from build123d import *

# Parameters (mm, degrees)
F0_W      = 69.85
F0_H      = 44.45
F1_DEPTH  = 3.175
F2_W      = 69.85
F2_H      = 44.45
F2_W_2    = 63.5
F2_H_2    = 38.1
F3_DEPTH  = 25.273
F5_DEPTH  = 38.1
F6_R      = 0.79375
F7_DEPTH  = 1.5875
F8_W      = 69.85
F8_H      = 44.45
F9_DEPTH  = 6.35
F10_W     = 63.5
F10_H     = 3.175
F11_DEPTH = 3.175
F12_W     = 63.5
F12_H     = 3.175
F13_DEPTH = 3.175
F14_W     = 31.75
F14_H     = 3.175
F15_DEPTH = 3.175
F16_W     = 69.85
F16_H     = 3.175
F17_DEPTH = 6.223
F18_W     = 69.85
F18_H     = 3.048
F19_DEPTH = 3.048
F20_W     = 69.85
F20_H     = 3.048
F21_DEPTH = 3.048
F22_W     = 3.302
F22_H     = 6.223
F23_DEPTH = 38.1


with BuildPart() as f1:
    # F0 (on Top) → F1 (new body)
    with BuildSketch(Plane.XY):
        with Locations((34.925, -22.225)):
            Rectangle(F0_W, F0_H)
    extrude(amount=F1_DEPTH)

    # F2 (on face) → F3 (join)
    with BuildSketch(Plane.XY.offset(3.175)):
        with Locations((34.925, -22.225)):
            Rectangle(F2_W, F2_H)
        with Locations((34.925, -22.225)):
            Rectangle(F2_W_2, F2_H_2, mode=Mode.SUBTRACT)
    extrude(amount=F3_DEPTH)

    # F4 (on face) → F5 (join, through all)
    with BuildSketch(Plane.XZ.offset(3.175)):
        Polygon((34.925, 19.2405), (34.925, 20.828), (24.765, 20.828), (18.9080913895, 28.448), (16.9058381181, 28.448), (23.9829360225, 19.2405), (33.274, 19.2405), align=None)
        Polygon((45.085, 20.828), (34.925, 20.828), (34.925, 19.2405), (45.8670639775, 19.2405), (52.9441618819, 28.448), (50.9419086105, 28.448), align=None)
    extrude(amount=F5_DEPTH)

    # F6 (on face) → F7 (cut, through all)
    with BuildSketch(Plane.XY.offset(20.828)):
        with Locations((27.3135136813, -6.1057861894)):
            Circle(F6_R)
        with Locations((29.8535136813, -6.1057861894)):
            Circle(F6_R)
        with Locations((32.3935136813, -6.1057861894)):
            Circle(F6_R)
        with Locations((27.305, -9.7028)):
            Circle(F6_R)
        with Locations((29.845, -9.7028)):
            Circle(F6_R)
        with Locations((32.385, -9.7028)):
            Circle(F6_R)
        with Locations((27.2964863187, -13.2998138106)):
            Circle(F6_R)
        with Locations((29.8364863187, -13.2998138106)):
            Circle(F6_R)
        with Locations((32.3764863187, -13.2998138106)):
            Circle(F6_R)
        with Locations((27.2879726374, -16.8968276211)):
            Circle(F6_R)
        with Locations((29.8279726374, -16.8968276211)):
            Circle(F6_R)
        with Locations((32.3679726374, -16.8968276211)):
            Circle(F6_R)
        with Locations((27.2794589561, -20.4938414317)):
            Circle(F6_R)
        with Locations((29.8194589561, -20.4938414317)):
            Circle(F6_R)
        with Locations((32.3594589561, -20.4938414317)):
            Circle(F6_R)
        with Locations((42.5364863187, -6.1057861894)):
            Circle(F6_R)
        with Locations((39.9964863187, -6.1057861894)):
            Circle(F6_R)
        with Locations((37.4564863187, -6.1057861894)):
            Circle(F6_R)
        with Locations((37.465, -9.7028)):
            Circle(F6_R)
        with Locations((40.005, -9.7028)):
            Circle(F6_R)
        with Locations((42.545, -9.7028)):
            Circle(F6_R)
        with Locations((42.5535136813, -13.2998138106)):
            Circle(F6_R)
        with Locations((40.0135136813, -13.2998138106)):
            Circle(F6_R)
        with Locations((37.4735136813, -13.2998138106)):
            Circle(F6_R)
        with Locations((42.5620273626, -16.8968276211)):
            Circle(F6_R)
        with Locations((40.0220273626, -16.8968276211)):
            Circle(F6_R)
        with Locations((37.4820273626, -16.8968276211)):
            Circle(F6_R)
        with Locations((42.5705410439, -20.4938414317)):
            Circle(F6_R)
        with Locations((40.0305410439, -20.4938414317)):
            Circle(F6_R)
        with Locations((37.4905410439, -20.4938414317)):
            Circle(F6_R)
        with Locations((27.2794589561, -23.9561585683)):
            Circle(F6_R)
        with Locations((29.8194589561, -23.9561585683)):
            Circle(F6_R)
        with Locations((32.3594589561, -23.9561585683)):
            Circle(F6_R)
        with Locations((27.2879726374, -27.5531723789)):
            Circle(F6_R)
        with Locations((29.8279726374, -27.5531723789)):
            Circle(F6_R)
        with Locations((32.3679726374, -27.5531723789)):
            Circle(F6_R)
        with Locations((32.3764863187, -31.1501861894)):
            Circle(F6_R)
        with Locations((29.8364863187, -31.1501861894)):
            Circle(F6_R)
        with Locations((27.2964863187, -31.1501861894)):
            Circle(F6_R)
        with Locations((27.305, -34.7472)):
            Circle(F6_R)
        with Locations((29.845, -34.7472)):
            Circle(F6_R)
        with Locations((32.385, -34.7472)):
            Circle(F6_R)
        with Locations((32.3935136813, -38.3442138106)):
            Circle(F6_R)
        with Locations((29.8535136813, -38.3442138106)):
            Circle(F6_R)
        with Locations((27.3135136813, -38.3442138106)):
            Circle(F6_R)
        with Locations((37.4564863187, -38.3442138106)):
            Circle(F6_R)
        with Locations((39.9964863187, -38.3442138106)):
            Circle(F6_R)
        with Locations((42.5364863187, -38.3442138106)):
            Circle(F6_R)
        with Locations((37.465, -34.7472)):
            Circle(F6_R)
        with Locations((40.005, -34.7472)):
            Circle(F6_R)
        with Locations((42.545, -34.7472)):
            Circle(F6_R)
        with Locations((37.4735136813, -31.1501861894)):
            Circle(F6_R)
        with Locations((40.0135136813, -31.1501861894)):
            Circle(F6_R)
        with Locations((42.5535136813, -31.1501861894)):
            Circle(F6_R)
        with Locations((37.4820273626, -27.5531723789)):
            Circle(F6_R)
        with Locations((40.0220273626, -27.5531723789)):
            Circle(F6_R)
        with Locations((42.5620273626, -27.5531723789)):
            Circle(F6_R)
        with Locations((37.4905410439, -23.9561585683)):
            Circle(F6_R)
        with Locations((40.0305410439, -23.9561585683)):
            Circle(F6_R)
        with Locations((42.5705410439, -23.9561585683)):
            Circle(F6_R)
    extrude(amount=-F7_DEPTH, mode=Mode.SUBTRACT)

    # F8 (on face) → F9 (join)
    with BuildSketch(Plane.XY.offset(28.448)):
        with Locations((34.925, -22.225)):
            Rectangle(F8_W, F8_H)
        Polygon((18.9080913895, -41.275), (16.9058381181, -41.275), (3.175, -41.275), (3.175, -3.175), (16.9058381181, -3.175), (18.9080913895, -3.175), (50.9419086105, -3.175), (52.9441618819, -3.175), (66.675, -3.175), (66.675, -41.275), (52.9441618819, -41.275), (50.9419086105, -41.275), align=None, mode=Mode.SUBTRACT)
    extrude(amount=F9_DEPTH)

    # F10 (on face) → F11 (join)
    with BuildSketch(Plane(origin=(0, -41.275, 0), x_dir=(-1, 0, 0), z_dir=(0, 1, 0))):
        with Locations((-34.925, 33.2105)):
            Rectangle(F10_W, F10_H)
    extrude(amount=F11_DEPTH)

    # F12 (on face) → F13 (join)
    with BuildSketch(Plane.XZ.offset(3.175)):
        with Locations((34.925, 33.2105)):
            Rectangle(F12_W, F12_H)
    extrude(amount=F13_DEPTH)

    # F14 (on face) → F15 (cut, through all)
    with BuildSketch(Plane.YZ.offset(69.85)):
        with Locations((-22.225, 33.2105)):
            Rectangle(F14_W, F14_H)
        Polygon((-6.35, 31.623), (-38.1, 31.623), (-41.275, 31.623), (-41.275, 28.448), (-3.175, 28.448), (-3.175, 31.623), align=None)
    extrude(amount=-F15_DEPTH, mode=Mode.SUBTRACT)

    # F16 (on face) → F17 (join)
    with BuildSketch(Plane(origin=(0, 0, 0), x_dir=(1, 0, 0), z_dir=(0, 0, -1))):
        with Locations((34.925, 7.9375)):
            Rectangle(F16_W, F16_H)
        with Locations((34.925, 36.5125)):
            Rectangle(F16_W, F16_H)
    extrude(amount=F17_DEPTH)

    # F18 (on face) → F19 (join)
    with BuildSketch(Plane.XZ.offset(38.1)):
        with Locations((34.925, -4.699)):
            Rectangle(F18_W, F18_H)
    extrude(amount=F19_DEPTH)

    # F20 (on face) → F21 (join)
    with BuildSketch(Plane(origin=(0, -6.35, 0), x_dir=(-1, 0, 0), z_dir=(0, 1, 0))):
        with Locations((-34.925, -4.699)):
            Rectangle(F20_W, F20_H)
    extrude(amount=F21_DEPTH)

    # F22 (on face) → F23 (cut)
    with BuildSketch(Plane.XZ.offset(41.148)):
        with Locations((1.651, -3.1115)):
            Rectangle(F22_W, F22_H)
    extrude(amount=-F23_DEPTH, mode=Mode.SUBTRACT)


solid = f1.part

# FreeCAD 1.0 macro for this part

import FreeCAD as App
import Part
import Sketcher
Q = App.Units.Quantity

doc = App.newDocument("Part")
body = doc.addObject("PartDesign::Body", "Body")

# Sketch on XY plane
sketch1 = body.newObject("Sketcher::SketchObject", "Sketch")
sketch1.AttachmentSupport = (doc.getObject("XY_Plane"), [""])
sketch1.MapMode = "FlatFace"
sketch1.addGeometry([
    Part.LineSegment(App.Vector(0, 0, 0), App.Vector(0, -44.45, 0)),
    Part.LineSegment(App.Vector(0, -44.45, 0), App.Vector(69.85, -44.45, 0)),
    Part.LineSegment(App.Vector(69.85, -44.45, 0), App.Vector(69.85, 0, 0)),
    Part.LineSegment(App.Vector(69.85, 0, 0), App.Vector(0, 0, 0)),
], False)
sketch1.addConstraint([
    Sketcher.Constraint("Coincident", 0, 2, 1, 1),
    Sketcher.Constraint("Coincident", 1, 2, 2, 1),
    Sketcher.Constraint("Coincident", 2, 2, 3, 1),
    Sketcher.Constraint("Coincident", 3, 2, 0, 1),
    Sketcher.Constraint("Vertical", 0),
    Sketcher.Constraint("Horizontal", 1),
    Sketcher.Constraint("Vertical", 2),
    Sketcher.Constraint("Horizontal", 3),
    Sketcher.Constraint("Coincident", 3, 2, -1, 1),
    Sketcher.Constraint("DistanceX", 1, 1, 1, 2, Q("2.75 in")),
    Sketcher.Constraint("DistanceY", 0, 2, 0, 1, Q("1.75 in")),
])
pad1 = body.newObject("PartDesign::Pad", "Pad")
pad1.Profile = sketch1
pad1.Length = Q("0.125 in")

# Sketch on XY plane
sketch2 = body.newObject("Sketcher::SketchObject", "Sketch001")
sketch2.AttachmentSupport = (doc.getObject("XY_Plane"), [""])
sketch2.MapMode = "FlatFace"
sketch2.AttachmentOffset = App.Placement(App.Vector(0, 0, 0.125 * 25.4), App.Rotation())
sketch2.addGeometry([
    Part.LineSegment(App.Vector(0, 0, 0), App.Vector(0, -44.45, 0)),  # 0
    Part.LineSegment(App.Vector(0, -44.45, 0), App.Vector(69.85, -44.45, 0)),  # 1
    Part.LineSegment(App.Vector(69.85, -44.45, 0), App.Vector(69.85, 0, 0)),  # 2
    Part.LineSegment(App.Vector(69.85, 0, 0), App.Vector(0, 0, 0)),  # 3
    Part.LineSegment(App.Vector(66.675, -41.275, 0), App.Vector(3.175, -41.275, 0)),  # 4
    Part.LineSegment(App.Vector(3.175, -41.275, 0), App.Vector(3.175, -3.175, 0)),  # 5
    Part.LineSegment(App.Vector(3.175, -3.175, 0), App.Vector(66.675, -3.175, 0)),  # 6
    Part.LineSegment(App.Vector(66.675, -3.175, 0), App.Vector(66.675, -41.275, 0)),  # 7
], False)
sketch2.addConstraint([
    Sketcher.Constraint("Coincident", 0, 2, 1, 1),
    Sketcher.Constraint("Coincident", 1, 2, 2, 1),
    Sketcher.Constraint("Coincident", 2, 2, 3, 1),
    Sketcher.Constraint("Coincident", 3, 2, 0, 1),
    Sketcher.Constraint("Coincident", 4, 2, 5, 1),
    Sketcher.Constraint("Coincident", 5, 2, 6, 1),
    Sketcher.Constraint("Coincident", 6, 2, 7, 1),
    Sketcher.Constraint("Coincident", 7, 2, 4, 1),
    Sketcher.Constraint("Vertical", 0),
    Sketcher.Constraint("Horizontal", 1),
    Sketcher.Constraint("Vertical", 2),
    Sketcher.Constraint("Horizontal", 3),
    Sketcher.Constraint("Horizontal", 4),
    Sketcher.Constraint("Vertical", 5),
    Sketcher.Constraint("Horizontal", 6),
    Sketcher.Constraint("Vertical", 7),
    Sketcher.Constraint("Coincident", 3, 2, -1, 1),
    Sketcher.Constraint("DistanceX", 4, 2, 4, 1, Q("2.5 in")),
    Sketcher.Constraint("DistanceY", 5, 1, 5, 2, Q("1.5 in")),
    Sketcher.Constraint("DistanceX", 1, 1, 1, 2, Q("2.75 in")),
    Sketcher.Constraint("DistanceY", 0, 2, 0, 1, Q("1.75 in")),
    Sketcher.Constraint("DistanceX", -1, 1, 4, 2, Q("0.125 in")),
    Sketcher.Constraint("DistanceY", 4, 2, -1, 1, Q("1.625 in")),
])
pad2 = body.newObject("PartDesign::Pad", "Pad001")
pad2.Profile = sketch2
pad2.Length = Q("0.995 in")

# Sketch on XZ plane
sketch3 = body.newObject("Sketcher::SketchObject", "Sketch002")
sketch3.AttachmentSupport = (doc.getObject("XZ_Plane"), [""])
sketch3.MapMode = "FlatFace"
sketch3.AttachmentOffset = App.Placement(App.Vector(0, 0, 0.125 * 25.4), App.Rotation())
sketch3.addGeometry([
    Part.LineSegment(App.Vector(24.765, 20.828, 0), App.Vector(18.908091, 28.448, 0)),  # 0
    Part.LineSegment(App.Vector(18.908091, 28.448, 0), App.Vector(16.905838, 28.448, 0)),  # 1
    Part.LineSegment(App.Vector(16.905838, 28.448, 0), App.Vector(23.982936, 19.2405, 0)),  # 2
    Part.LineSegment(App.Vector(23.982936, 19.2405, 0), App.Vector(45.867064, 19.2405, 0)),  # 3
    Part.LineSegment(App.Vector(45.867064, 19.2405, 0), App.Vector(52.944162, 28.448, 0)),  # 4
    Part.LineSegment(App.Vector(52.944162, 28.448, 0), App.Vector(50.941909, 28.448, 0)),  # 5
    Part.LineSegment(App.Vector(50.941909, 28.448, 0), App.Vector(45.085, 20.828, 0)),  # 6
    Part.LineSegment(App.Vector(45.085, 20.828, 0), App.Vector(24.765, 20.828, 0)),  # 7
], False)
sketch3.addConstraint([
    Sketcher.Constraint("Coincident", 0, 2, 1, 1),
    Sketcher.Constraint("Coincident", 1, 2, 2, 1),
    Sketcher.Constraint("Coincident", 2, 2, 3, 1),
    Sketcher.Constraint("Coincident", 3, 2, 4, 1),
    Sketcher.Constraint("Coincident", 4, 2, 5, 1),
    Sketcher.Constraint("Coincident", 5, 2, 6, 1),
    Sketcher.Constraint("Coincident", 6, 2, 7, 1),
    Sketcher.Constraint("Coincident", 7, 2, 0, 1),
    Sketcher.Constraint("Horizontal", 1),
    Sketcher.Constraint("Horizontal", 3),
    Sketcher.Constraint("Horizontal", 5),
    Sketcher.Constraint("Horizontal", 7),
    Sketcher.Constraint("Parallel", 0, 2),
    Sketcher.Constraint("Parallel", 4, 6),
    Sketcher.Constraint("Horizontal", 1, 2, 4, 2),
    Sketcher.Constraint("Equal", 1, 5),
    Sketcher.Constraint("Equal", 2, 4),
    Sketcher.Constraint("DistanceX", 7, 2, 7, 1, Q("0.8 in")),
    Sketcher.Constraint("DistanceY", 6, 2, 5, 2, Q("0.3 in")),
    Sketcher.Constraint("DistanceY", -1, 1, 0, 2, Q("1.12 in")),
    Sketcher.Constraint("DistanceX", -1, 1, 6, 2, Q("1.775 in")),
    Sketcher.Constraint("DistanceY", 3, 2, 6, 2, Q("0.0625 in")),
    Sketcher.Constraint("Distance", 2, 11.613069),
    Sketcher.Constraint("DistanceX", 1, 2, 1, 1, 2.002253),
])
pad3 = body.newObject("PartDesign::Pad", "Pad002")
pad3.Profile = sketch3
pad3.Type = "UpToLast"

# Sketch on XY plane
sketch4 = body.newObject("Sketcher::SketchObject", "Sketch003")
sketch4.AttachmentSupport = (doc.getObject("XY_Plane"), [""])
sketch4.MapMode = "FlatFace"
sketch4.AttachmentOffset = App.Placement(App.Vector(0, 0, 0.82 * 25.4), App.Rotation())
sketch4.addGeometry([
    Part.Circle(App.Vector(27.313514, -6.105786, 0), App.Vector(0, 0, 1), 0.79375),  # 0
    Part.Circle(App.Vector(29.853514, -6.105786, 0), App.Vector(0, 0, 1), 0.79375),  # 1
    Part.Circle(App.Vector(32.393514, -6.105786, 0), App.Vector(0, 0, 1), 0.79375),  # 2
    Part.Circle(App.Vector(27.305, -9.7028, 0), App.Vector(0, 0, 1), 0.79375),  # 3
    Part.Circle(App.Vector(29.845, -9.7028, 0), App.Vector(0, 0, 1), 0.79375),  # 4
    Part.Circle(App.Vector(32.385, -9.7028, 0), App.Vector(0, 0, 1), 0.79375),  # 5
    Part.Circle(App.Vector(27.296486, -13.299814, 0), App.Vector(0, 0, 1), 0.79375),  # 6
    Part.Circle(App.Vector(29.836486, -13.299814, 0), App.Vector(0, 0, 1), 0.79375),  # 7
    Part.Circle(App.Vector(32.376486, -13.299814, 0), App.Vector(0, 0, 1), 0.79375),  # 8
    Part.Circle(App.Vector(27.287973, -16.896828, 0), App.Vector(0, 0, 1), 0.79375),  # 9
    Part.Circle(App.Vector(29.827973, -16.896828, 0), App.Vector(0, 0, 1), 0.79375),  # 10
    Part.Circle(App.Vector(32.367973, -16.896828, 0), App.Vector(0, 0, 1), 0.79375),  # 11
    Part.Circle(App.Vector(27.279459, -20.493841, 0), App.Vector(0, 0, 1), 0.79375),  # 12
    Part.Circle(App.Vector(29.819459, -20.493841, 0), App.Vector(0, 0, 1), 0.79375),  # 13
    Part.Circle(App.Vector(32.359459, -20.493841, 0), App.Vector(0, 0, 1), 0.79375),  # 14
    Part.Circle(App.Vector(42.536486, -6.105786, 0), App.Vector(0, 0, 1), 0.79375),  # 15
    Part.Circle(App.Vector(39.996486, -6.105786, 0), App.Vector(0, 0, 1), 0.79375),  # 16
    Part.Circle(App.Vector(37.456486, -6.105786, 0), App.Vector(0, 0, 1), 0.79375),  # 17
    Part.Circle(App.Vector(37.465, -9.7028, 0), App.Vector(0, 0, 1), 0.79375),  # 18
    Part.Circle(App.Vector(40.005, -9.7028, 0), App.Vector(0, 0, 1), 0.79375),  # 19
    Part.Circle(App.Vector(42.545, -9.7028, 0), App.Vector(0, 0, 1), 0.79375),  # 20
    Part.Circle(App.Vector(42.553514, -13.299814, 0), App.Vector(0, 0, 1), 0.79375),  # 21
    Part.Circle(App.Vector(40.013514, -13.299814, 0), App.Vector(0, 0, 1), 0.79375),  # 22
    Part.Circle(App.Vector(37.473514, -13.299814, 0), App.Vector(0, 0, 1), 0.79375),  # 23
    Part.Circle(App.Vector(42.562027, -16.896828, 0), App.Vector(0, 0, 1), 0.79375),  # 24
    Part.Circle(App.Vector(40.022027, -16.896828, 0), App.Vector(0, 0, 1), 0.79375),  # 25
    Part.Circle(App.Vector(37.482027, -16.896828, 0), App.Vector(0, 0, 1), 0.79375),  # 26
    Part.Circle(App.Vector(42.570541, -20.493841, 0), App.Vector(0, 0, 1), 0.79375),  # 27
    Part.Circle(App.Vector(40.030541, -20.493841, 0), App.Vector(0, 0, 1), 0.79375),  # 28
    Part.Circle(App.Vector(37.490541, -20.493841, 0), App.Vector(0, 0, 1), 0.79375),  # 29
    Part.Circle(App.Vector(27.279459, -23.956159, 0), App.Vector(0, 0, 1), 0.79375),  # 30
    Part.Circle(App.Vector(29.819459, -23.956159, 0), App.Vector(0, 0, 1), 0.79375),  # 31
    Part.Circle(App.Vector(32.359459, -23.956159, 0), App.Vector(0, 0, 1), 0.79375),  # 32
    Part.Circle(App.Vector(27.287973, -27.553172, 0), App.Vector(0, 0, 1), 0.79375),  # 33
    Part.Circle(App.Vector(29.827973, -27.553172, 0), App.Vector(0, 0, 1), 0.79375),  # 34
    Part.Circle(App.Vector(32.367973, -27.553172, 0), App.Vector(0, 0, 1), 0.79375),  # 35
    Part.Circle(App.Vector(32.376486, -31.150186, 0), App.Vector(0, 0, 1), 0.79375),  # 36
    Part.Circle(App.Vector(29.836486, -31.150186, 0), App.Vector(0, 0, 1), 0.79375),  # 37
    Part.Circle(App.Vector(27.296486, -31.150186, 0), App.Vector(0, 0, 1), 0.79375),  # 38
    Part.Circle(App.Vector(27.305, -34.7472, 0), App.Vector(0, 0, 1), 0.79375),  # 39
    Part.Circle(App.Vector(29.845, -34.7472, 0), App.Vector(0, 0, 1), 0.79375),  # 40
    Part.Circle(App.Vector(32.385, -34.7472, 0), App.Vector(0, 0, 1), 0.79375),  # 41
    Part.Circle(App.Vector(32.393514, -38.344214, 0), App.Vector(0, 0, 1), 0.79375),  # 42
    Part.Circle(App.Vector(29.853514, -38.344214, 0), App.Vector(0, 0, 1), 0.79375),  # 43
    Part.Circle(App.Vector(27.313514, -38.344214, 0), App.Vector(0, 0, 1), 0.79375),  # 44
    Part.Circle(App.Vector(37.456486, -38.344214, 0), App.Vector(0, 0, 1), 0.79375),  # 45
    Part.Circle(App.Vector(39.996486, -38.344214, 0), App.Vector(0, 0, 1), 0.79375),  # 46
    Part.Circle(App.Vector(42.536486, -38.344214, 0), App.Vector(0, 0, 1), 0.79375),  # 47
    Part.Circle(App.Vector(37.465, -34.7472, 0), App.Vector(0, 0, 1), 0.79375),  # 48
    Part.Circle(App.Vector(40.005, -34.7472, 0), App.Vector(0, 0, 1), 0.79375),  # 49
    Part.Circle(App.Vector(42.545, -34.7472, 0), App.Vector(0, 0, 1), 0.79375),  # 50
    Part.Circle(App.Vector(37.473514, -31.150186, 0), App.Vector(0, 0, 1), 0.79375),  # 51
    Part.Circle(App.Vector(40.013514, -31.150186, 0), App.Vector(0, 0, 1), 0.79375),  # 52
    Part.Circle(App.Vector(42.553514, -31.150186, 0), App.Vector(0, 0, 1), 0.79375),  # 53
    Part.Circle(App.Vector(37.482027, -27.553172, 0), App.Vector(0, 0, 1), 0.79375),  # 54
    Part.Circle(App.Vector(40.022027, -27.553172, 0), App.Vector(0, 0, 1), 0.79375),  # 55
    Part.Circle(App.Vector(42.562027, -27.553172, 0), App.Vector(0, 0, 1), 0.79375),  # 56
    Part.Circle(App.Vector(37.490541, -23.956159, 0), App.Vector(0, 0, 1), 0.79375),  # 57
    Part.Circle(App.Vector(40.030541, -23.956159, 0), App.Vector(0, 0, 1), 0.79375),  # 58
    Part.Circle(App.Vector(42.570541, -23.956159, 0), App.Vector(0, 0, 1), 0.79375),  # 59
], False)
sketch4.addConstraint([
    Sketcher.Constraint("Equal", 0, 1),
    Sketcher.Constraint("Equal", 1, 2),
    Sketcher.Constraint("Equal", 2, 3),
    Sketcher.Constraint("Equal", 3, 4),
    Sketcher.Constraint("Equal", 4, 5),
    Sketcher.Constraint("Equal", 5, 6),
    Sketcher.Constraint("Equal", 6, 7),
    Sketcher.Constraint("Equal", 7, 8),
    Sketcher.Constraint("Equal", 8, 9),
    Sketcher.Constraint("Equal", 9, 10),
    Sketcher.Constraint("Equal", 10, 11),
    Sketcher.Constraint("Equal", 11, 12),
    Sketcher.Constraint("Equal", 12, 13),
    Sketcher.Constraint("Equal", 13, 14),
    Sketcher.Constraint("Equal", 14, 15),
    Sketcher.Constraint("Equal", 15, 16),
    Sketcher.Constraint("Equal", 16, 17),
    Sketcher.Constraint("Equal", 17, 18),
    Sketcher.Constraint("Equal", 18, 19),
    Sketcher.Constraint("Equal", 19, 20),
    Sketcher.Constraint("Equal", 20, 21),
    Sketcher.Constraint("Equal", 21, 22),
    Sketcher.Constraint("Equal", 22, 23),
    Sketcher.Constraint("Equal", 23, 24),
    Sketcher.Constraint("Equal", 24, 25),
    Sketcher.Constraint("Equal", 25, 26),
    Sketcher.Constraint("Equal", 26, 27),
    Sketcher.Constraint("Equal", 27, 28),
    Sketcher.Constraint("Equal", 28, 29),
    Sketcher.Constraint("Equal", 29, 30),
    Sketcher.Constraint("Equal", 30, 31),
    Sketcher.Constraint("Equal", 31, 32),
    Sketcher.Constraint("Equal", 32, 33),
    Sketcher.Constraint("Equal", 33, 34),
    Sketcher.Constraint("Equal", 34, 35),
    Sketcher.Constraint("Equal", 35, 36),
    Sketcher.Constraint("Equal", 36, 37),
    Sketcher.Constraint("Equal", 37, 38),
    Sketcher.Constraint("Equal", 38, 39),
    Sketcher.Constraint("Equal", 39, 40),
    Sketcher.Constraint("Equal", 40, 41),
    Sketcher.Constraint("Equal", 41, 42),
    Sketcher.Constraint("Equal", 42, 43),
    Sketcher.Constraint("Equal", 43, 44),
    Sketcher.Constraint("Equal", 44, 45),
    Sketcher.Constraint("Equal", 45, 46),
    Sketcher.Constraint("Equal", 46, 47),
    Sketcher.Constraint("Equal", 47, 48),
    Sketcher.Constraint("Equal", 48, 49),
    Sketcher.Constraint("Equal", 49, 50),
    Sketcher.Constraint("Equal", 50, 51),
    Sketcher.Constraint("Equal", 51, 52),
    Sketcher.Constraint("Equal", 52, 53),
    Sketcher.Constraint("Equal", 53, 54),
    Sketcher.Constraint("Equal", 54, 55),
    Sketcher.Constraint("Equal", 55, 56),
    Sketcher.Constraint("Equal", 56, 57),
    Sketcher.Constraint("Equal", 57, 58),
    Sketcher.Constraint("Equal", 58, 59),
    Sketcher.Constraint("Horizontal", 0, 3, 1, 3),
    Sketcher.Constraint("Horizontal", 1, 3, 2, 3),
    Sketcher.Constraint("Horizontal", 3, 3, 4, 3),
    Sketcher.Constraint("Horizontal", 4, 3, 5, 3),
    Sketcher.Constraint("Horizontal", 6, 3, 7, 3),
    Sketcher.Constraint("Horizontal", 7, 3, 8, 3),
    Sketcher.Constraint("Horizontal", 9, 3, 10, 3),
    Sketcher.Constraint("Horizontal", 10, 3, 11, 3),
    Sketcher.Constraint("Horizontal", 12, 3, 13, 3),
    Sketcher.Constraint("Horizontal", 13, 3, 14, 3),
    Sketcher.Constraint("Horizontal", 2, 3, 15, 3),
    Sketcher.Constraint("Horizontal", 15, 3, 16, 3),
    Sketcher.Constraint("Horizontal", 16, 3, 17, 3),
    Sketcher.Constraint("Horizontal", 5, 3, 18, 3),
    Sketcher.Constraint("Horizontal", 18, 3, 19, 3),
    Sketcher.Constraint("Horizontal", 19, 3, 20, 3),
    Sketcher.Constraint("Horizontal", 8, 3, 21, 3),
    Sketcher.Constraint("Horizontal", 21, 3, 22, 3),
    Sketcher.Constraint("Horizontal", 22, 3, 23, 3),
    Sketcher.Constraint("Horizontal", 11, 3, 24, 3),
    Sketcher.Constraint("Horizontal", 24, 3, 25, 3),
    Sketcher.Constraint("Horizontal", 25, 3, 26, 3),
    Sketcher.Constraint("Horizontal", 14, 3, 27, 3),
    Sketcher.Constraint("Horizontal", 27, 3, 28, 3),
    Sketcher.Constraint("Horizontal", 28, 3, 29, 3),
    Sketcher.Constraint("Horizontal", 30, 3, 31, 3),
    Sketcher.Constraint("Horizontal", 31, 3, 32, 3),
    Sketcher.Constraint("Horizontal", 33, 3, 34, 3),
    Sketcher.Constraint("Horizontal", 34, 3, 35, 3),
    Sketcher.Constraint("Horizontal", 36, 3, 37, 3),
    Sketcher.Constraint("Horizontal", 37, 3, 38, 3),
    Sketcher.Constraint("Horizontal", 39, 3, 40, 3),
    Sketcher.Constraint("Horizontal", 40, 3, 41, 3),
    Sketcher.Constraint("Horizontal", 42, 3, 43, 3),
    Sketcher.Constraint("Horizontal", 43, 3, 44, 3),
    Sketcher.Constraint("Horizontal", 44, 3, 45, 3),
    Sketcher.Constraint("Horizontal", 45, 3, 46, 3),
    Sketcher.Constraint("Horizontal", 46, 3, 47, 3),
    Sketcher.Constraint("Horizontal", 41, 3, 48, 3),
    Sketcher.Constraint("Horizontal", 48, 3, 49, 3),
    Sketcher.Constraint("Horizontal", 49, 3, 50, 3),
    Sketcher.Constraint("Horizontal", 38, 3, 51, 3),
    Sketcher.Constraint("Horizontal", 51, 3, 52, 3),
    Sketcher.Constraint("Horizontal", 52, 3, 53, 3),
    Sketcher.Constraint("Horizontal", 35, 3, 54, 3),
    Sketcher.Constraint("Horizontal", 54, 3, 55, 3),
    Sketcher.Constraint("Horizontal", 55, 3, 56, 3),
    Sketcher.Constraint("Horizontal", 32, 3, 57, 3),
    Sketcher.Constraint("Horizontal", 57, 3, 58, 3),
    Sketcher.Constraint("Horizontal", 58, 3, 59, 3),
    Sketcher.Constraint("Vertical", 12, 3, 30, 3),
    Sketcher.Constraint("Vertical", 13, 3, 31, 3),
    Sketcher.Constraint("Vertical", 14, 3, 32, 3),
    Sketcher.Constraint("Vertical", 9, 3, 33, 3),
    Sketcher.Constraint("Vertical", 10, 3, 34, 3),
    Sketcher.Constraint("Vertical", 11, 3, 35, 3),
    Sketcher.Constraint("Vertical", 8, 3, 36, 3),
    Sketcher.Constraint("Vertical", 7, 3, 37, 3),
    Sketcher.Constraint("Vertical", 6, 3, 38, 3),
    Sketcher.Constraint("Vertical", 3, 3, 39, 3),
    Sketcher.Constraint("Vertical", 4, 3, 40, 3),
    Sketcher.Constraint("Vertical", 5, 3, 41, 3),
    Sketcher.Constraint("Vertical", 2, 3, 42, 3),
    Sketcher.Constraint("Vertical", 1, 3, 43, 3),
    Sketcher.Constraint("Vertical", 0, 3, 44, 3),
    Sketcher.Constraint("Vertical", 17, 3, 45, 3),
    Sketcher.Constraint("Vertical", 16, 3, 46, 3),
    Sketcher.Constraint("Vertical", 15, 3, 47, 3),
    Sketcher.Constraint("Vertical", 18, 3, 48, 3),
    Sketcher.Constraint("Vertical", 19, 3, 49, 3),
    Sketcher.Constraint("Vertical", 20, 3, 50, 3),
    Sketcher.Constraint("Vertical", 23, 3, 51, 3),
    Sketcher.Constraint("Vertical", 22, 3, 52, 3),
    Sketcher.Constraint("Vertical", 21, 3, 53, 3),
    Sketcher.Constraint("Vertical", 26, 3, 54, 3),
    Sketcher.Constraint("Vertical", 25, 3, 55, 3),
    Sketcher.Constraint("Vertical", 24, 3, 56, 3),
    Sketcher.Constraint("Vertical", 29, 3, 57, 3),
    Sketcher.Constraint("Vertical", 28, 3, 58, 3),
    Sketcher.Constraint("Vertical", 27, 3, 59, 3),
    Sketcher.Constraint("Diameter", 0, Q("0.0625 in")),
    Sketcher.Constraint("DistanceX", 0, 3, 1, 3, Q("0.1 in")),
    Sketcher.Constraint("DistanceX", 1, 3, 2, 3, Q("0.1 in")),
    Sketcher.Constraint("DistanceX", 3, 3, 4, 3, Q("0.1 in")),
    Sketcher.Constraint("DistanceX", 4, 3, 5, 3, Q("0.1 in")),
    Sketcher.Constraint("DistanceX", 6, 3, 7, 3, Q("0.1 in")),
    Sketcher.Constraint("DistanceX", 7, 3, 8, 3, Q("0.1 in")),
    Sketcher.Constraint("DistanceX", 9, 3, 10, 3, Q("0.1 in")),
    Sketcher.Constraint("DistanceX", 10, 3, 11, 3, Q("0.1 in")),
    Sketcher.Constraint("DistanceX", 12, 3, 13, 3, Q("0.1 in")),
    Sketcher.Constraint("DistanceX", 13, 3, 14, 3, Q("0.1 in")),
    Sketcher.Constraint("DistanceX", 8, 3, 15, 3, Q("0.4 in")),
    Sketcher.Constraint("DistanceX", 16, 3, 15, 3, Q("0.1 in")),
    Sketcher.Constraint("DistanceX", 17, 3, 16, 3, Q("0.1 in")),
    Sketcher.Constraint("DistanceX", 5, 3, 18, 3, Q("0.2 in")),
    Sketcher.Constraint("DistanceX", 18, 3, 19, 3, Q("0.1 in")),
    Sketcher.Constraint("DistanceX", 19, 3, 20, 3, Q("0.1 in")),
    Sketcher.Constraint("DistanceX", 22, 3, 21, 3, Q("0.1 in")),
    Sketcher.Constraint("DistanceX", 23, 3, 22, 3, Q("0.1 in")),
    Sketcher.Constraint("DistanceX", 25, 3, 24, 3, Q("0.1 in")),
    Sketcher.Constraint("DistanceX", 26, 3, 25, 3, Q("0.1 in")),
    Sketcher.Constraint("DistanceX", 28, 3, 27, 3, Q("0.1 in")),
    Sketcher.Constraint("DistanceX", 29, 3, 28, 3, Q("0.1 in")),
    Sketcher.Constraint("DistanceX", -1, 1, 3, 3, Q("1.075 in")),
    Sketcher.Constraint("DistanceY", 3, 3, -1, 1, Q("0.382 in")),
    Sketcher.Constraint("DistanceY", 39, 3, -1, 1, Q("1.368 in")),
    Sketcher.Constraint("DistanceX", -1, 1, 12, 3, 27.279459),
    Sketcher.Constraint("DistanceY", 12, 3, -1, 1, 20.493841),
    Sketcher.Constraint("DistanceX", -1, 1, 27, 3, 42.570541),
    Sketcher.Constraint("DistanceY", 30, 3, -1, 1, 23.956159),
    Sketcher.Constraint("DistanceY", 30, 3, 9, 3, 7.059331),
    Sketcher.Constraint("DistanceY", 33, 3, 12, 3, 7.059331),
    Sketcher.Constraint("DistanceX", 36, 3, 54, 3, 5.105541),
    Sketcher.Constraint("DistanceX", -1, 1, 0, 3, 27.313514),
    Sketcher.Constraint("DistanceY", 0, 3, -1, 1, 6.105786),
    Sketcher.Constraint("DistanceX", -1, 1, 6, 3, 27.296486),
    Sketcher.Constraint("DistanceY", 6, 3, -1, 1, 13.299814),
    Sketcher.Constraint("DistanceX", -1, 1, 9, 3, 27.287973),
    Sketcher.Constraint("DistanceX", -1, 1, 21, 3, 42.553514),
    Sketcher.Constraint("DistanceY", 36, 3, -1, 1, 31.150186),
    Sketcher.Constraint("DistanceY", 42, 3, -1, 1, 38.344214),
])
pocket1 = body.newObject("PartDesign::Pocket", "Pocket")
pocket1.Profile = sketch4
pocket1.Length = Q("0.0625 in")

# Sketch on XY plane
sketch5 = body.newObject("Sketcher::SketchObject", "Sketch004")
sketch5.AttachmentSupport = (doc.getObject("XY_Plane"), [""])
sketch5.MapMode = "FlatFace"
sketch5.AttachmentOffset = App.Placement(App.Vector(0, 0, 1.12 * 25.4), App.Rotation())
sketch5.addGeometry([
    Part.LineSegment(App.Vector(0, 0, 0), App.Vector(0, -44.45, 0)),  # 0
    Part.LineSegment(App.Vector(0, -44.45, 0), App.Vector(69.85, -44.45, 0)),  # 1
    Part.LineSegment(App.Vector(69.85, -44.45, 0), App.Vector(69.85, 0, 0)),  # 2
    Part.LineSegment(App.Vector(69.85, 0, 0), App.Vector(0, 0, 0)),  # 3
    Part.LineSegment(App.Vector(66.675, -41.275, 0), App.Vector(3.175, -41.275, 0)),  # 4
    Part.LineSegment(App.Vector(3.175, -41.275, 0), App.Vector(3.175, -3.175, 0)),  # 5
    Part.LineSegment(App.Vector(3.175, -3.175, 0), App.Vector(66.675, -3.175, 0)),  # 6
    Part.LineSegment(App.Vector(66.675, -3.175, 0), App.Vector(66.675, -41.275, 0)),  # 7
], False)
sketch5.addConstraint([
    Sketcher.Constraint("Coincident", 0, 2, 1, 1),
    Sketcher.Constraint("Coincident", 1, 2, 2, 1),
    Sketcher.Constraint("Coincident", 2, 2, 3, 1),
    Sketcher.Constraint("Coincident", 3, 2, 0, 1),
    Sketcher.Constraint("Coincident", 4, 2, 5, 1),
    Sketcher.Constraint("Coincident", 5, 2, 6, 1),
    Sketcher.Constraint("Coincident", 6, 2, 7, 1),
    Sketcher.Constraint("Coincident", 7, 2, 4, 1),
    Sketcher.Constraint("Vertical", 0),
    Sketcher.Constraint("Horizontal", 1),
    Sketcher.Constraint("Vertical", 2),
    Sketcher.Constraint("Horizontal", 3),
    Sketcher.Constraint("Horizontal", 4),
    Sketcher.Constraint("Vertical", 5),
    Sketcher.Constraint("Horizontal", 6),
    Sketcher.Constraint("Vertical", 7),
    Sketcher.Constraint("Coincident", 3, 2, -1, 1),
    Sketcher.Constraint("DistanceX", 4, 2, 4, 1, Q("2.5 in")),
    Sketcher.Constraint("DistanceY", 5, 1, 5, 2, Q("1.5 in")),
    Sketcher.Constraint("DistanceX", 1, 1, 1, 2, Q("2.75 in")),
    Sketcher.Constraint("DistanceY", 0, 2, 0, 1, Q("1.75 in")),
    Sketcher.Constraint("DistanceX", -1, 1, 4, 2, Q("0.125 in")),
    Sketcher.Constraint("DistanceY", 4, 2, -1, 1, Q("1.625 in")),
])
pad4 = body.newObject("PartDesign::Pad", "Pad003")
pad4.Profile = sketch5
pad4.Length = Q("0.25 in")

# Sketch on XZ plane
sketch6 = body.newObject("Sketcher::SketchObject", "Sketch005")
sketch6.AttachmentSupport = (doc.getObject("XZ_Plane"), [""])
sketch6.MapMode = "FlatFace"
sketch6.AttachmentOffset = App.Placement(App.Vector(0, 0, 1.625 * 25.4), App.Rotation())
sketch6.addGeometry([
    Part.LineSegment(App.Vector(66.675, 34.798, 0), App.Vector(66.675, 31.623, 0)),
    Part.LineSegment(App.Vector(66.675, 31.623, 0), App.Vector(3.175, 31.623, 0)),
    Part.LineSegment(App.Vector(3.175, 31.623, 0), App.Vector(3.175, 34.798, 0)),
    Part.LineSegment(App.Vector(3.175, 34.798, 0), App.Vector(66.675, 34.798, 0)),
], False)
sketch6.addConstraint([
    Sketcher.Constraint("Coincident", 0, 2, 1, 1),
    Sketcher.Constraint("Coincident", 1, 2, 2, 1),
    Sketcher.Constraint("Coincident", 2, 2, 3, 1),
    Sketcher.Constraint("Coincident", 3, 2, 0, 1),
    Sketcher.Constraint("Vertical", 0),
    Sketcher.Constraint("Horizontal", 1),
    Sketcher.Constraint("Vertical", 2),
    Sketcher.Constraint("Horizontal", 3),
    Sketcher.Constraint("DistanceX", 1, 2, 1, 1, Q("2.5 in")),
    Sketcher.Constraint("DistanceY", 0, 2, 0, 1, Q("0.125 in")),
    Sketcher.Constraint("DistanceY", -1, 1, 2, 2, Q("1.37 in")),
    Sketcher.Constraint("DistanceX", -1, 1, 0, 2, Q("2.625 in")),
])
pad5 = body.newObject("PartDesign::Pad", "Pad004")
pad5.Profile = sketch6
pad5.Length = Q("0.125 in")
pad5.Reversed = True

# Sketch on XZ plane
sketch7 = body.newObject("Sketcher::SketchObject", "Sketch006")
sketch7.AttachmentSupport = (doc.getObject("XZ_Plane"), [""])
sketch7.MapMode = "FlatFace"
sketch7.AttachmentOffset = App.Placement(App.Vector(0, 0, 0.125 * 25.4), App.Rotation())
sketch7.addGeometry([
    Part.LineSegment(App.Vector(3.175, 34.798, 0), App.Vector(3.175, 31.623, 0)),
    Part.LineSegment(App.Vector(3.175, 31.623, 0), App.Vector(66.675, 31.623, 0)),
    Part.LineSegment(App.Vector(66.675, 31.623, 0), App.Vector(66.675, 34.798, 0)),
    Part.LineSegment(App.Vector(66.675, 34.798, 0), App.Vector(3.175, 34.798, 0)),
], False)
sketch7.addConstraint([
    Sketcher.Constraint("Coincident", 0, 2, 1, 1),
    Sketcher.Constraint("Coincident", 1, 2, 2, 1),
    Sketcher.Constraint("Coincident", 2, 2, 3, 1),
    Sketcher.Constraint("Coincident", 3, 2, 0, 1),
    Sketcher.Constraint("Vertical", 0),
    Sketcher.Constraint("Horizontal", 1),
    Sketcher.Constraint("Vertical", 2),
    Sketcher.Constraint("Horizontal", 3),
    Sketcher.Constraint("DistanceX", 1, 1, 1, 2, Q("2.5 in")),
    Sketcher.Constraint("DistanceY", 0, 2, 0, 1, Q("0.125 in")),
    Sketcher.Constraint("DistanceY", -1, 1, 2, 2, Q("1.37 in")),
    Sketcher.Constraint("DistanceX", -1, 1, 0, 2, Q("0.125 in")),
])
pad6 = body.newObject("PartDesign::Pad", "Pad005")
pad6.Profile = sketch7
pad6.Length = Q("0.125 in")

# Sketch on YZ plane
sketch8 = body.newObject("Sketcher::SketchObject", "Sketch007")
sketch8.AttachmentSupport = (doc.getObject("YZ_Plane"), [""])
sketch8.MapMode = "FlatFace"
sketch8.AttachmentOffset = App.Placement(App.Vector(0, 0, 2.75 * 25.4), App.Rotation())
sketch8.addGeometry([
    Part.LineSegment(App.Vector(-38.1, 34.798, 0), App.Vector(-38.1, 31.623, 0)),  # 0
    Part.LineSegment(App.Vector(-38.1, 31.623, 0), App.Vector(-41.275, 31.623, 0)),  # 1
    Part.LineSegment(App.Vector(-41.275, 31.623, 0), App.Vector(-41.275, 28.448, 0)),  # 2
    Part.LineSegment(App.Vector(-41.275, 28.448, 0), App.Vector(-3.175, 28.448, 0)),  # 3
    Part.LineSegment(App.Vector(-3.175, 28.448, 0), App.Vector(-3.175, 31.623, 0)),  # 4
    Part.LineSegment(App.Vector(-3.175, 31.623, 0), App.Vector(-6.35, 31.623, 0)),  # 5
    Part.LineSegment(App.Vector(-6.35, 31.623, 0), App.Vector(-6.35, 34.798, 0)),  # 6
    Part.LineSegment(App.Vector(-6.35, 34.798, 0), App.Vector(-38.1, 34.798, 0)),  # 7
], False)
sketch8.addConstraint([
    Sketcher.Constraint("Coincident", 0, 2, 1, 1),
    Sketcher.Constraint("Coincident", 1, 2, 2, 1),
    Sketcher.Constraint("Coincident", 2, 2, 3, 1),
    Sketcher.Constraint("Coincident", 3, 2, 4, 1),
    Sketcher.Constraint("Coincident", 4, 2, 5, 1),
    Sketcher.Constraint("Coincident", 5, 2, 6, 1),
    Sketcher.Constraint("Coincident", 6, 2, 7, 1),
    Sketcher.Constraint("Coincident", 7, 2, 0, 1),
    Sketcher.Constraint("Vertical", 0),
    Sketcher.Constraint("Horizontal", 1),
    Sketcher.Constraint("Vertical", 2),
    Sketcher.Constraint("Horizontal", 3),
    Sketcher.Constraint("Vertical", 4),
    Sketcher.Constraint("Horizontal", 5),
    Sketcher.Constraint("Vertical", 6),
    Sketcher.Constraint("Horizontal", 7),
    Sketcher.Constraint("Horizontal", 1, 2, 4, 2),
    Sketcher.Constraint("Equal", 1, 5),
    Sketcher.Constraint("Equal", 5, 0),
    Sketcher.Constraint("Equal", 0, 2),
    Sketcher.Constraint("DistanceX", 3, 1, 3, 2, Q("1.5 in")),
    Sketcher.Constraint("DistanceX", 7, 2, 7, 1, Q("1.25 in")),
    Sketcher.Constraint("DistanceX", 0, 2, -1, 1, Q("1.5 in")),
    Sketcher.Constraint("DistanceY", -1, 1, 2, 2, Q("1.12 in")),
])
pocket2 = body.newObject("PartDesign::Pocket", "Pocket001")
pocket2.Profile = sketch8
pocket2.Length = Q("0.125 in")

# Sketch on XY plane
sketch9 = body.newObject("Sketcher::SketchObject", "Sketch008")
sketch9.AttachmentSupport = (doc.getObject("XY_Plane"), [""])
sketch9.MapMode = "FlatFace"
sketch9.addGeometry([
    Part.LineSegment(App.Vector(0, -9.525, 0), App.Vector(0, -6.35, 0)),  # 0
    Part.LineSegment(App.Vector(0, -6.35, 0), App.Vector(69.85, -6.35, 0)),  # 1
    Part.LineSegment(App.Vector(69.85, -6.35, 0), App.Vector(69.85, -9.525, 0)),  # 2
    Part.LineSegment(App.Vector(69.85, -9.525, 0), App.Vector(0, -9.525, 0)),  # 3
    Part.LineSegment(App.Vector(0, -38.1, 0), App.Vector(0, -34.925, 0)),  # 4
    Part.LineSegment(App.Vector(0, -34.925, 0), App.Vector(69.85, -34.925, 0)),  # 5
    Part.LineSegment(App.Vector(69.85, -34.925, 0), App.Vector(69.85, -38.1, 0)),  # 6
    Part.LineSegment(App.Vector(69.85, -38.1, 0), App.Vector(0, -38.1, 0)),  # 7
], False)
sketch9.addConstraint([
    Sketcher.Constraint("Coincident", 0, 2, 1, 1),
    Sketcher.Constraint("Coincident", 1, 2, 2, 1),
    Sketcher.Constraint("Coincident", 2, 2, 3, 1),
    Sketcher.Constraint("Coincident", 3, 2, 0, 1),
    Sketcher.Constraint("Coincident", 4, 2, 5, 1),
    Sketcher.Constraint("Coincident", 5, 2, 6, 1),
    Sketcher.Constraint("Coincident", 6, 2, 7, 1),
    Sketcher.Constraint("Coincident", 7, 2, 4, 1),
    Sketcher.Constraint("Vertical", 0),
    Sketcher.Constraint("Horizontal", 1),
    Sketcher.Constraint("Vertical", 2),
    Sketcher.Constraint("Horizontal", 3),
    Sketcher.Constraint("Vertical", 4),
    Sketcher.Constraint("Horizontal", 5),
    Sketcher.Constraint("Vertical", 6),
    Sketcher.Constraint("Horizontal", 7),
    Sketcher.Constraint("PointOnObject", 0, 2, -2),
    Sketcher.Constraint("PointOnObject", 4, 2, -2),
    Sketcher.Constraint("Vertical", 2, 2, 5, 2),
    Sketcher.Constraint("Equal", 2, 4),
    Sketcher.Constraint("DistanceY", 4, 2, 3, 2, Q("1 in")),
    Sketcher.Constraint("DistanceX", 1, 1, 1, 2, Q("2.75 in")),
    Sketcher.Constraint("DistanceY", 6, 2, -1, 1, Q("1.5 in")),
    Sketcher.Constraint("DistanceY", 0, 1, 0, 2, Q("0.125 in")),
])
pad7 = body.newObject("PartDesign::Pad", "Pad006")
pad7.Profile = sketch9
pad7.Length = Q("0.245 in")
pad7.Reversed = True

# Sketch on XZ plane
sketch10 = body.newObject("Sketcher::SketchObject", "Sketch009")
sketch10.AttachmentSupport = (doc.getObject("XZ_Plane"), [""])
sketch10.MapMode = "FlatFace"
sketch10.AttachmentOffset = App.Placement(App.Vector(0, 0, 1.5 * 25.4), App.Rotation())
sketch10.addGeometry([
    Part.LineSegment(App.Vector(0, -3.175, 0), App.Vector(0, -6.223, 0)),
    Part.LineSegment(App.Vector(0, -6.223, 0), App.Vector(69.85, -6.223, 0)),
    Part.LineSegment(App.Vector(69.85, -6.223, 0), App.Vector(69.85, -3.175, 0)),
    Part.LineSegment(App.Vector(69.85, -3.175, 0), App.Vector(0, -3.175, 0)),
], False)
sketch10.addConstraint([
    Sketcher.Constraint("Coincident", 0, 2, 1, 1),
    Sketcher.Constraint("Coincident", 1, 2, 2, 1),
    Sketcher.Constraint("Coincident", 2, 2, 3, 1),
    Sketcher.Constraint("Coincident", 3, 2, 0, 1),
    Sketcher.Constraint("Vertical", 0),
    Sketcher.Constraint("Horizontal", 1),
    Sketcher.Constraint("Vertical", 2),
    Sketcher.Constraint("Horizontal", 3),
    Sketcher.Constraint("PointOnObject", 0, 2, -2),
    Sketcher.Constraint("DistanceX", 1, 1, 1, 2, Q("2.75 in")),
    Sketcher.Constraint("DistanceY", 0, 2, 0, 1, Q("0.12 in")),
    Sketcher.Constraint("DistanceY", 0, 2, -1, 1, Q("0.245 in")),
])
pad8 = body.newObject("PartDesign::Pad", "Pad007")
pad8.Profile = sketch10
pad8.Length = Q("0.12 in")

# Sketch on XZ plane
sketch11 = body.newObject("Sketcher::SketchObject", "Sketch010")
sketch11.AttachmentSupport = (doc.getObject("XZ_Plane"), [""])
sketch11.MapMode = "FlatFace"
sketch11.AttachmentOffset = App.Placement(App.Vector(0, 0, 0.25 * 25.4), App.Rotation())
sketch11.addGeometry([
    Part.LineSegment(App.Vector(69.85, -3.175, 0), App.Vector(69.85, -6.223, 0)),
    Part.LineSegment(App.Vector(69.85, -6.223, 0), App.Vector(0, -6.223, 0)),
    Part.LineSegment(App.Vector(0, -6.223, 0), App.Vector(0, -3.175, 0)),
    Part.LineSegment(App.Vector(0, -3.175, 0), App.Vector(69.85, -3.175, 0)),
], False)
sketch11.addConstraint([
    Sketcher.Constraint("Coincident", 0, 2, 1, 1),
    Sketcher.Constraint("Coincident", 1, 2, 2, 1),
    Sketcher.Constraint("Coincident", 2, 2, 3, 1),
    Sketcher.Constraint("Coincident", 3, 2, 0, 1),
    Sketcher.Constraint("Vertical", 0),
    Sketcher.Constraint("Horizontal", 1),
    Sketcher.Constraint("Vertical", 2),
    Sketcher.Constraint("Horizontal", 3),
    Sketcher.Constraint("PointOnObject", 1, 2, -2),
    Sketcher.Constraint("DistanceX", 1, 2, 1, 1, Q("2.75 in")),
    Sketcher.Constraint("DistanceY", 0, 2, 0, 1, Q("0.12 in")),
    Sketcher.Constraint("DistanceY", 0, 2, -1, 1, Q("0.245 in")),
])
pad9 = body.newObject("PartDesign::Pad", "Pad008")
pad9.Profile = sketch11
pad9.Length = Q("0.12 in")
pad9.Reversed = True

# Sketch on XZ plane
sketch12 = body.newObject("Sketcher::SketchObject", "Sketch011")
sketch12.AttachmentSupport = (doc.getObject("XZ_Plane"), [""])
sketch12.MapMode = "FlatFace"
sketch12.AttachmentOffset = App.Placement(App.Vector(0, 0, 1.62 * 25.4), App.Rotation())
sketch12.addGeometry([
    Part.LineSegment(App.Vector(0, 0, 0), App.Vector(0, -6.223, 0)),
    Part.LineSegment(App.Vector(0, -6.223, 0), App.Vector(3.302, -6.223, 0)),
    Part.LineSegment(App.Vector(3.302, -6.223, 0), App.Vector(3.302, 0, 0)),
    Part.LineSegment(App.Vector(3.302, 0, 0), App.Vector(0, 0, 0)),
], False)
sketch12.addConstraint([
    Sketcher.Constraint("Coincident", 0, 2, 1, 1),
    Sketcher.Constraint("Coincident", 1, 2, 2, 1),
    Sketcher.Constraint("Coincident", 2, 2, 3, 1),
    Sketcher.Constraint("Coincident", 3, 2, 0, 1),
    Sketcher.Constraint("Vertical", 0),
    Sketcher.Constraint("Horizontal", 1),
    Sketcher.Constraint("Vertical", 2),
    Sketcher.Constraint("Horizontal", 3),
    Sketcher.Constraint("Coincident", 3, 2, -1, 1),
    Sketcher.Constraint("DistanceX", 1, 1, 1, 2, Q("0.13 in")),
    Sketcher.Constraint("DistanceY", 0, 2, 0, 1, Q("0.245 in")),
])
pocket3 = body.newObject("PartDesign::Pocket", "Pocket002")
pocket3.Profile = sketch12
pocket3.Length = Q("1.5 in")

doc.recompute()
